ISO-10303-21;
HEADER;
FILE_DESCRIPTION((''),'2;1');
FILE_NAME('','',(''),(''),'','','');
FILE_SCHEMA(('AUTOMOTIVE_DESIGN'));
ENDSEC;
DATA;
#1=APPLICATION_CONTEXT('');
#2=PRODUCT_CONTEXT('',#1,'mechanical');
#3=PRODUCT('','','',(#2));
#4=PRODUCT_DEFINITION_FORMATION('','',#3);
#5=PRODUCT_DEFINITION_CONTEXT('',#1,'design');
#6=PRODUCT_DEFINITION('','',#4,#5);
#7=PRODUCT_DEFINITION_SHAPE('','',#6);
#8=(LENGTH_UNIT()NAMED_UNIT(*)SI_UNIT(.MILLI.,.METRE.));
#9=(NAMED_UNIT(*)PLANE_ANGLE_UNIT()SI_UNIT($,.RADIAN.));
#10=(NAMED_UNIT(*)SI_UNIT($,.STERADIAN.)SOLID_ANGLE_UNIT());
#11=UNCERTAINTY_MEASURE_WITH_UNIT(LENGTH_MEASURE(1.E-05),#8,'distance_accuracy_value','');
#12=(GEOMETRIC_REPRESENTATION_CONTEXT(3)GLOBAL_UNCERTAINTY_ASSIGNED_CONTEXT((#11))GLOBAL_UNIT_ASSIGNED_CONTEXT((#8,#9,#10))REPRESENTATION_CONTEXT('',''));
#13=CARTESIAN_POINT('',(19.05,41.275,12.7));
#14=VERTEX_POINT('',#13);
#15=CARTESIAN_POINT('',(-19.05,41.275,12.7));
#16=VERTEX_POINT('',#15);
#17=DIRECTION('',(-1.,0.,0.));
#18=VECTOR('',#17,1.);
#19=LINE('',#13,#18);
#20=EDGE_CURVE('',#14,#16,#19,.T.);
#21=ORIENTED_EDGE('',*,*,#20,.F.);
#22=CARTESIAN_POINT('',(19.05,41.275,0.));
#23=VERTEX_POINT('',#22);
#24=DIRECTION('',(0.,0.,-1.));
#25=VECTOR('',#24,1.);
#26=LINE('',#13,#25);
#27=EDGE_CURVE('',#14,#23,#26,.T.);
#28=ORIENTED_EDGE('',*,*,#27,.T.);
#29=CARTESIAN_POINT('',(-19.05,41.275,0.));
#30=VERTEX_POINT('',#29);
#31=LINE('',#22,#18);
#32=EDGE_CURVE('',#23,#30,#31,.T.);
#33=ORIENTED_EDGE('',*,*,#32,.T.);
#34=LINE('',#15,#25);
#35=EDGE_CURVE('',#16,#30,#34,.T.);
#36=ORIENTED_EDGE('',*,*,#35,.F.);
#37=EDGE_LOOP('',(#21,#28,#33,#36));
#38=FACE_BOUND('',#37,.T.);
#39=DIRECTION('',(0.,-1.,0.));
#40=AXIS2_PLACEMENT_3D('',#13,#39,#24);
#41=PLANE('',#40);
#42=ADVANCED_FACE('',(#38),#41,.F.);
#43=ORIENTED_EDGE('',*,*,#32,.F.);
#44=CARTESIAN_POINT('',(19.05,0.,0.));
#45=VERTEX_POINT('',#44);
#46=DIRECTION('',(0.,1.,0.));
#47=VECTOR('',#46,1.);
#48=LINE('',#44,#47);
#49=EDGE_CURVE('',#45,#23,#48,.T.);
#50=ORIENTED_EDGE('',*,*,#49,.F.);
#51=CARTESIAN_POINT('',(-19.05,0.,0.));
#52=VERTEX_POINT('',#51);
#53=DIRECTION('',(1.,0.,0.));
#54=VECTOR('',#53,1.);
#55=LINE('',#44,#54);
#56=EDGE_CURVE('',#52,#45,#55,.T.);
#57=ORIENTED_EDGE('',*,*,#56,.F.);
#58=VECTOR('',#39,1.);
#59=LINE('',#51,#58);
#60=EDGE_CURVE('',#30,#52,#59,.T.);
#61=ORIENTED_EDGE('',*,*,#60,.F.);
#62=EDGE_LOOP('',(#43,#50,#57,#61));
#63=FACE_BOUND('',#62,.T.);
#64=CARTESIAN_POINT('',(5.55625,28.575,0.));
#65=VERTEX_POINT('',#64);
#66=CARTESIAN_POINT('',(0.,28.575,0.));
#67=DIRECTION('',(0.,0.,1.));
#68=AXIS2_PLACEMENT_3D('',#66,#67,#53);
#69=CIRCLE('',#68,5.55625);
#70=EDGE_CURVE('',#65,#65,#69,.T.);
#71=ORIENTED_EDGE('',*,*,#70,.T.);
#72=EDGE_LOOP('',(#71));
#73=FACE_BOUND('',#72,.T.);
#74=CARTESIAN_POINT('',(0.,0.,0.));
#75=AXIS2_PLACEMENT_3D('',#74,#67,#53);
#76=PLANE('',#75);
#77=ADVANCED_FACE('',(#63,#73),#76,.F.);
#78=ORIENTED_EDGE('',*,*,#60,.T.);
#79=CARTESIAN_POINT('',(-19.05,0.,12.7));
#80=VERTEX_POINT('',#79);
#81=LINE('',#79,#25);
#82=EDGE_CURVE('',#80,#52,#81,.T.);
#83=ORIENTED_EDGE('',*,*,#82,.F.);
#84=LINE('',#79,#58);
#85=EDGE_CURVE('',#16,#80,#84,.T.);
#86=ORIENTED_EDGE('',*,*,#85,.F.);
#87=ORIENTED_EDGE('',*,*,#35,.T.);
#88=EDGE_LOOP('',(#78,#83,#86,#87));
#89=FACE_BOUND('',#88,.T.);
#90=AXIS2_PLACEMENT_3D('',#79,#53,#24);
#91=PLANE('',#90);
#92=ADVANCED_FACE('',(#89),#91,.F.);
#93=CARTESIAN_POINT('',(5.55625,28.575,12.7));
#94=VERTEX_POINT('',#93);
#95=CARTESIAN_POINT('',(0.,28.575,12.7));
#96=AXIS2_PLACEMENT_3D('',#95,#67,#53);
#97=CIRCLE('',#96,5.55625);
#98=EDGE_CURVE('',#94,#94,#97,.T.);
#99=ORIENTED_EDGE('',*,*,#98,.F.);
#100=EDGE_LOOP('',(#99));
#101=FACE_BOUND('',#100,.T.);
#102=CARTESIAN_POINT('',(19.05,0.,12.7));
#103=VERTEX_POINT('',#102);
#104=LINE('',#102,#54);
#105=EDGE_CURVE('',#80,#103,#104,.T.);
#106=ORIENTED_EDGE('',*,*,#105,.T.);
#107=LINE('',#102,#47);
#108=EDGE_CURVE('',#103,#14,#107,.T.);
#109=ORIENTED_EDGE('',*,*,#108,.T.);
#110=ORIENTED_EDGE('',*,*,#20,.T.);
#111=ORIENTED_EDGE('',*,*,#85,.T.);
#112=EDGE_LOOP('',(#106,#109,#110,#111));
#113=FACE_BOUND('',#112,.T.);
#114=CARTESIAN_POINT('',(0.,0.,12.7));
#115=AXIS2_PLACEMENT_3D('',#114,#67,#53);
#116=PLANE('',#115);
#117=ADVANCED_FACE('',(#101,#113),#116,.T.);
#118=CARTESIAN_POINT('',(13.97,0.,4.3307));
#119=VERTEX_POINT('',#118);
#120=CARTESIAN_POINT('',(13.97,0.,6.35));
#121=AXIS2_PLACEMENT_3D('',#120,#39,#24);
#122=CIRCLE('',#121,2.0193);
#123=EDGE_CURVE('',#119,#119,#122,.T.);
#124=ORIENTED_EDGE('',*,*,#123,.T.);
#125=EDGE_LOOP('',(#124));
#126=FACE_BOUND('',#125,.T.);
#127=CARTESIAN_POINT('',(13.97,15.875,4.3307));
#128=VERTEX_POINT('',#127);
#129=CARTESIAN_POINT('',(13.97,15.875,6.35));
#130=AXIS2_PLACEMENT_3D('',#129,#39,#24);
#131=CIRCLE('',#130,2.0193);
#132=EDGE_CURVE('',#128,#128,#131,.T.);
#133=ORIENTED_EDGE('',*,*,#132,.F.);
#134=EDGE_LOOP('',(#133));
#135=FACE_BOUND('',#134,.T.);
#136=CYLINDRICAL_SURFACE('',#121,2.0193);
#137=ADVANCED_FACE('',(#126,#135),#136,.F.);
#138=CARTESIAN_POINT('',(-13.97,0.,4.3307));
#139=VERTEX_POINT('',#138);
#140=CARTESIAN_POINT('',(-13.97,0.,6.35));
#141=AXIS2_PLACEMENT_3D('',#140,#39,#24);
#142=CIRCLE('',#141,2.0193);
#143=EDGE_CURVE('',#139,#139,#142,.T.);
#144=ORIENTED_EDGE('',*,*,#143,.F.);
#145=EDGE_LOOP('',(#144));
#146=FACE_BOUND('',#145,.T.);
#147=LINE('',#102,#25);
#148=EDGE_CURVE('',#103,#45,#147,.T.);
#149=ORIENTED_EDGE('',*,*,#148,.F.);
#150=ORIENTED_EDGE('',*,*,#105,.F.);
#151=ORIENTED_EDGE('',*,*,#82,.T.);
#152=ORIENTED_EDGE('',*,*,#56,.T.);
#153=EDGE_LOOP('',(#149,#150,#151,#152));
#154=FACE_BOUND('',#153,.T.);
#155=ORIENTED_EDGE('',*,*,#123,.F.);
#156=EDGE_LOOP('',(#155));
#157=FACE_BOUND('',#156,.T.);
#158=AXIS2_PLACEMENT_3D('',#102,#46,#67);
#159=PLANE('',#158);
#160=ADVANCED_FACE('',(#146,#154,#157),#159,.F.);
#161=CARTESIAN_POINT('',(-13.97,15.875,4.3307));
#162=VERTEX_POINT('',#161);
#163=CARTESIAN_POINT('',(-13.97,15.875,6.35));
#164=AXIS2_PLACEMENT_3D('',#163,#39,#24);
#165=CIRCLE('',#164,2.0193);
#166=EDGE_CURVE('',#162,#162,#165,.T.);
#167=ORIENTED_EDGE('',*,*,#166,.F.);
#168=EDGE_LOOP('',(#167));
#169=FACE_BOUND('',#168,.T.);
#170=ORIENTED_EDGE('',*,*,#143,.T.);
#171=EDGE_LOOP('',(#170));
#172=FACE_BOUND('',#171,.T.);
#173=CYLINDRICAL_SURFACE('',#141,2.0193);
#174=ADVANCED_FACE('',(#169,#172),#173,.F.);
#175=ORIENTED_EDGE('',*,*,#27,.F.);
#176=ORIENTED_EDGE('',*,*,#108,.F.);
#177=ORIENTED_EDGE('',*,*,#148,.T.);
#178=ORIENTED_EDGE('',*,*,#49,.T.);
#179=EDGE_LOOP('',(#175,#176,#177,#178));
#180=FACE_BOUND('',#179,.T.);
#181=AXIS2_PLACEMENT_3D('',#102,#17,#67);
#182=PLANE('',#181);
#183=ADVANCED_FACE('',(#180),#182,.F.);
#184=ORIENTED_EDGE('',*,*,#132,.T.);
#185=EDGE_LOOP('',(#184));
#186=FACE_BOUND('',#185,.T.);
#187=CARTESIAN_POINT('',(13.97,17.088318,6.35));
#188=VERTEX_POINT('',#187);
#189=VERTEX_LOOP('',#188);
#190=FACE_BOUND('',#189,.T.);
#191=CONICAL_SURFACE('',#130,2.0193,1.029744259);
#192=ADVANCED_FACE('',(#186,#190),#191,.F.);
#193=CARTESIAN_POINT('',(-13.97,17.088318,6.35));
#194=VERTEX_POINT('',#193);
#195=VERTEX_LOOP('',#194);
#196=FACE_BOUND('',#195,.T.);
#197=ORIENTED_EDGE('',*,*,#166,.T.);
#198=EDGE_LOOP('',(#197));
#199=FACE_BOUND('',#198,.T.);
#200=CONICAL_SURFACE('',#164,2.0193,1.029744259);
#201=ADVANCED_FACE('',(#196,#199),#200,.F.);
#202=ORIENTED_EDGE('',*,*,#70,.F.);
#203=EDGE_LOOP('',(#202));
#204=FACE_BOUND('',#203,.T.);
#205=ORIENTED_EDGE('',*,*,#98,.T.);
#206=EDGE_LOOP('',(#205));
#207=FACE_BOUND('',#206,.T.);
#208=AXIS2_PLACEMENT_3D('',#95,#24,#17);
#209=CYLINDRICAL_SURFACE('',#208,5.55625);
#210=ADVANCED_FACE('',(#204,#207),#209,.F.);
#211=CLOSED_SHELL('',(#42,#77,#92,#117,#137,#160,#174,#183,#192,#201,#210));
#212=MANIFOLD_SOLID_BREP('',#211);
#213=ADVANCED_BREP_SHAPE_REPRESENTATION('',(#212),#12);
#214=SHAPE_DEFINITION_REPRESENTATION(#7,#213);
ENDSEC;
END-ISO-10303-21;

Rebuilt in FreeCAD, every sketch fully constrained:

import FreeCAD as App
import Part
import Sketcher
Q = App.Units.Quantity


def add_polygon(sketch, points):
    """Adds a closed chain of lines whose ends are joined by coincident constraints."""
    first, n = sketch.GeometryCount, len(points)
    for a, b in zip(points, points[1:] + points[:1]):
        sketch.addGeometry(Part.LineSegment(App.Vector(*a, 0), App.Vector(*b, 0)), False)
    for i in range(n):
        sketch.addConstraint(Sketcher.Constraint("Coincident", first + i, 2, first + (i + 1) % n, 1))

doc = App.newDocument("Part")
params = doc.addObject("Spreadsheet::Sheet", "Params")
for row, (alias, value) in enumerate([
    ("sketch1_diameter", "0.4375 in"),
    ("sketch1_width", "1.5 in"),
    ("sketch1_height", "1.625 in"),
    ("pad1_length", "0.5 in"),
    ("sketch2_diameter", "0.159 in"),
    ("hole_diameter", "0.159 in"),
    ("hole_depth", "0.625 in"),
], start=1):
    params.set(f"A{row}", alias)
    params.set(f"B{row}", "=" + value)
    params.setAlias(f"B{row}", alias)

body = doc.addObject("PartDesign::Body", "Body")

sketch1 = body.newObject("Sketcher::SketchObject", "Sketch")
sketch1.AttachmentSupport = (doc.getObject("XY_Plane"), [""])
sketch1.MapMode = "FlatFace"
add_polygon(sketch1, [(-19, 41), (-19, 0), (19, 0), (19, 41)])
sketch1.addGeometry(Part.Circle(App.Vector(0, 29, 0), App.Vector(0, 0, 1), 6), False)
sketch1.addConstraint(Sketcher.Constraint("Vertical", 0))
sketch1.addConstraint(Sketcher.Constraint("Horizontal", 1))
sketch1.addConstraint(Sketcher.Constraint("Vertical", 2))
sketch1.addConstraint(Sketcher.Constraint("Horizontal", 3))
sketch1.addConstraint(Sketcher.Constraint("Symmetric", 0, 2, 1, 2, -1, 1))
sketch1.addConstraint(Sketcher.Constraint("PointOnObject", 4, 3, -2))
sketch1.addConstraint(Sketcher.Constraint("Diameter", 4, Q("0.4375 in")))
sketch1.addConstraint(Sketcher.Constraint("DistanceX", 1, 1, 1, 2, Q("1.5 in")))
sketch1.addConstraint(Sketcher.Constraint("DistanceY", 4, 3, 2, 2, Q("0.5 in")))
sketch1.addConstraint(Sketcher.Constraint("DistanceY", 0, 2, 0, 1, Q("1.625 in")))
sketch1.setExpression("Constraints[10]", "Params.sketch1_diameter")
sketch1.setExpression("Constraints[11]", "Params.sketch1_width")
sketch1.setExpression("Constraints[13]", "Params.sketch1_height")
pad1 = body.newObject("PartDesign::Pad", "Pad")
pad1.Profile = sketch1
pad1.setExpression("Length", "Params.pad1_length")

sketch2 = body.newObject("Sketcher::SketchObject", "Sketch001")
sketch2.AttachmentSupport = (doc.getObject("XZ_Plane"), [""])
sketch2.MapMode = "FlatFace"
sketch2.addGeometry(Part.Circle(App.Vector(14, 6.3, 0), App.Vector(0, 0, 1), 2), False)
sketch2.addGeometry(Part.Circle(App.Vector(-14, 6.3, 0), App.Vector(0, 0, 1), 2), False)
sketch2.addConstraint(Sketcher.Constraint("Equal", 0, 1))
sketch2.addConstraint(Sketcher.Constraint("Symmetric", 0, 3, 1, 3, -2))
sketch2.addConstraint(Sketcher.Constraint("Diameter", 0, Q("0.159 in")))
sketch2.addConstraint(Sketcher.Constraint("DistanceX", 1, 3, 0, 3, Q("1.1 in")))
sketch2.addConstraint(Sketcher.Constraint("DistanceY", -1, 1, 0, 3, Q("0.25 in")))
sketch2.setExpression("Constraints[2]", "Params.sketch2_diameter")
doc.recompute()
hole = body.newObject("PartDesign::Hole", "Hole")
hole.Profile = sketch2
hole.ThreadType = "None"
hole.setExpression("Diameter", "Params.hole_diameter")
hole.DepthType = "Dimension"
hole.setExpression("Depth", "Params.hole_depth")
hole.DrillPoint = "Angled"
hole.DrillPointAngle = 118

doc.recompute()
